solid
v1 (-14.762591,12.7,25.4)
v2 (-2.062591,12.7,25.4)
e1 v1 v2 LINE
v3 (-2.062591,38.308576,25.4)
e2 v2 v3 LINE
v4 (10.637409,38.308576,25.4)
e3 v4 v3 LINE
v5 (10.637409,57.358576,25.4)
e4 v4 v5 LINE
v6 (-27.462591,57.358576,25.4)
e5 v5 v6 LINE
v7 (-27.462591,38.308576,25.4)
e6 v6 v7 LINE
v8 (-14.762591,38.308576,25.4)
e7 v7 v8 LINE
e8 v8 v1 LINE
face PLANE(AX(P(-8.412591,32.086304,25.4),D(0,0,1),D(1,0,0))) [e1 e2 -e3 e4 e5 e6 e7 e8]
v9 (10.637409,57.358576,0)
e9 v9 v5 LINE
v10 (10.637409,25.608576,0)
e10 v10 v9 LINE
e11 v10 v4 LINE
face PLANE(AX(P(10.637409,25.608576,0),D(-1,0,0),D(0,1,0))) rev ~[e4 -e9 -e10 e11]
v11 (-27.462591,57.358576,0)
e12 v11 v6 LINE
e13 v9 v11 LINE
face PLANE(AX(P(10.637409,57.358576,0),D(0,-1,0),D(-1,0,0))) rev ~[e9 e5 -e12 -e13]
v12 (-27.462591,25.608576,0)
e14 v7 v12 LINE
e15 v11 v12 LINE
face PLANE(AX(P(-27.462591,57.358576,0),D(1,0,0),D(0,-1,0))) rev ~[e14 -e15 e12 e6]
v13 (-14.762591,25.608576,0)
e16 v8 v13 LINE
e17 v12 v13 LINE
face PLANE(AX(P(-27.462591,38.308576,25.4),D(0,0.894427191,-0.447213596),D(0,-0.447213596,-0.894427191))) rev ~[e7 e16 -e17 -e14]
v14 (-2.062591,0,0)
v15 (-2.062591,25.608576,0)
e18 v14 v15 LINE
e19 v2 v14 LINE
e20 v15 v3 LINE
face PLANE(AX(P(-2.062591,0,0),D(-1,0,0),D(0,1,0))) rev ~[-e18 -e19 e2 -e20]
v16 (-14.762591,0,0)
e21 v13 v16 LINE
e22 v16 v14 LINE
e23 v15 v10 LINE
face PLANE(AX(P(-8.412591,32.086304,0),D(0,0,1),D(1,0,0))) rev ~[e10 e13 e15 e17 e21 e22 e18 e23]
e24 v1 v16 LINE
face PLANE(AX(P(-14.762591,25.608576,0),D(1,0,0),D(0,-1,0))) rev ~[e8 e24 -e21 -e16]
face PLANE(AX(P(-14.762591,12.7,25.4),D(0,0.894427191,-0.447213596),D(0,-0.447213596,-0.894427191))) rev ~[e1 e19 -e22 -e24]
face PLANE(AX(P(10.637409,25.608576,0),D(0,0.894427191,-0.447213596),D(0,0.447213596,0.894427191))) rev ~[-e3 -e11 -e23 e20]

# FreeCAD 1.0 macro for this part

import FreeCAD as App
import Part
import Sketcher

V = App.Vector
Q = App.Units.Quantity


def add_polygon(sketch, points):
    """Adds a closed chain of lines whose ends are joined by coincident constraints."""
    first, n = sketch.GeometryCount, len(points)
    for a, b in zip(points, points[1:] + points[:1]):
        sketch.addGeometry(Part.LineSegment(App.Vector(*a, 0), App.Vector(*b, 0)), False)
    for i in range(n):
        sketch.addConstraint(Sketcher.Constraint("Coincident", first + i, 2, first + (i + 1) % n, 1))

doc = App.newDocument("Part")
params = doc.addObject("Spreadsheet::Sheet", "Params")
for row, (alias, value) in enumerate([
    ("sketch1_width", "1.5 in"),
    ("sketch1_height", "1.25 in"),
    ("pad1_length", "1 in"),
    ("sketch2_height", "1 in"),
    ("sketch2_width", "0.5 in"),
    ("pocket1_length", "0.5 in"),
    ("sketch3_height", "1 in"),
    ("sketch3_width", "0.5 in"),
    ("pocket2_length", "0.5 in"),
    ("sketch4_height", "1 in"),
    ("sketch4_width", "0.5 in"),
    ("pocket3_length", "0.5 in"),
], start=1):
    params.set(f"A{row}", alias)
    params.set(f"B{row}", "=" + value)
    params.setAlias(f"B{row}", alias)

body = doc.addObject("PartDesign::Body", "Body")

# Sketch on XY plane
sketch1 = body.newObject("Sketcher::SketchObject", "Sketch")
sketch1.AttachmentSupport = (doc.getObject("XY_Plane"), [""])
sketch1.MapMode = "FlatFace"
add_polygon(sketch1, [(11, 57), (-27, 57), (-27, 26), (-15, 26), (-15, 0), (-2, 0), (-2, 26), (11, 26)])  # lines 0-7
sketch1.addConstraint([
    Sketcher.Constraint("Horizontal", 0),
    Sketcher.Constraint("Vertical", 1),
    Sketcher.Constraint("Horizontal", 2),
    Sketcher.Constraint("Vertical", 3),
    Sketcher.Constraint("Horizontal", 4),
    Sketcher.Constraint("Vertical", 5),
    Sketcher.Constraint("Horizontal", 6),
    Sketcher.Constraint("Vertical", 7),
    Sketcher.Constraint("PointOnObject", 3, 2, -1),
    Sketcher.Constraint("Horizontal", 2, 2, 5, 2),
    Sketcher.Constraint("Equal", 2, 4),
    Sketcher.Constraint("Equal", 4, 6),
    Sketcher.Constraint("DistanceX", 0, 2, 0, 1, Q("1.5 in")),
    Sketcher.Constraint("DistanceY", 1, 2, 1, 1, Q("1.25 in")),
    Sketcher.Constraint("DistanceY", 3, 2, 3, 1, 25.608576),
    Sketcher.Constraint("DistanceX", 0, 2, -1, 1, 27.462591),
])
sketch1.setExpression("Constraints[20]", "Params.sketch1_width")
sketch1.setExpression("Constraints[21]", "Params.sketch1_height")
pad1 = body.newObject("PartDesign::Pad", "Pad")
pad1.Profile = sketch1
pad1.setExpression("Length", "Params.pad1_length")

# Sketch on YZ plane
sketch2 = body.newObject("Sketcher::SketchObject", "Sketch001")
sketch2.AttachmentSupport = (doc.getObject("YZ_Plane"), [""])
sketch2.MapMode = "FlatFace"
sketch2.AttachmentOffset = App.Placement(V(0, 0, -27.462591), App.Rotation())
add_polygon(sketch2, [(26, 25), (38, 25), (26, 0)])  # lines 0-2
sketch2.addConstraint([
    Sketcher.Constraint("Horizontal", 0),
    Sketcher.Constraint("Vertical", 2),
    Sketcher.Constraint("PointOnObject", 1, 2, -1),
    Sketcher.Constraint("DistanceY", 2, 1, 2, 2, Q("1 in")),
    Sketcher.Constraint("DistanceX", 0, 1, 0, 2, Q("0.5 in")),
    Sketcher.Constraint("DistanceX", -1, 1, 0, 2, 38.308576),
])
sketch2.setExpression("Constraints[6]", "Params.sketch2_height")
sketch2.setExpression("Constraints[7]", "Params.sketch2_width")
pocket1 = body.newObject("PartDesign::Pocket", "Pocket")
pocket1.Profile = sketch2
pocket1.setExpression("Length", "Params.pocket1_length")
pocket1.Reversed = True

# Sketch on YZ plane
sketch3 = body.newObject("Sketcher::SketchObject", "Sketch002")
sketch3.AttachmentSupport = (doc.getObject("YZ_Plane"), [""])
sketch3.MapMode = "FlatFace"
sketch3.AttachmentOffset = App.Placement(V(0, 0, 10.637409), App.Rotation())
add_polygon(sketch3, [(26, 25), (26, 0), (38, 25)])  # lines 0-2
sketch3.addConstraint([
    Sketcher.Constraint("Vertical", 0),
    Sketcher.Constraint("Horizontal", 2),
    Sketcher.Constraint("PointOnObject", 0, 2, -1),
    Sketcher.Constraint("DistanceY", 0, 2, 0, 1, Q("1 in")),
    Sketcher.Constraint("DistanceX", 2, 2, 2, 1, Q("0.5 in")),
    Sketcher.Constraint("DistanceX", -1, 1, 0, 2, 25.608576),
])
sketch3.setExpression("Constraints[6]", "Params.sketch3_height")
sketch3.setExpression("Constraints[7]", "Params.sketch3_width")
pocket2 = body.newObject("PartDesign::Pocket", "Pocket001")
pocket2.Profile = sketch3
pocket2.setExpression("Length", "Params.pocket2_length")

# Sketch on YZ plane
sketch4 = body.newObject("Sketcher::SketchObject", "Sketch003")
sketch4.AttachmentSupport = (doc.getObject("YZ_Plane"), [""])
sketch4.MapMode = "FlatFace"
sketch4.AttachmentOffset = App.Placement(V(0, 0, -14.762591), App.Rotation())
add_polygon(sketch4, [(0, 25), (13, 25), (0, 0)])  # lines 0-2
sketch4.addConstraint([
    Sketcher.Constraint("Horizontal", 0),
    Sketcher.Constraint("Vertical", 2),
    Sketcher.Constraint("Coincident", 1, 2, -1, 1),
    Sketcher.Constraint("DistanceY", 2, 1, 2, 2, Q("1 in")),
    Sketcher.Constraint("DistanceX", 0, 1, 0, 2, Q("0.5 in")),
])
sketch4.setExpression("Constraints[6]", "Params.sketch4_height")
sketch4.setExpression("Constraints[7]", "Params.sketch4_width")
pocket3 = body.newObject("PartDesign::Pocket", "Pocket002")
pocket3.Profile = sketch4
pocket3.setExpression("Length", "Params.pocket3_length")
pocket3.Reversed = True

doc.recompute()
